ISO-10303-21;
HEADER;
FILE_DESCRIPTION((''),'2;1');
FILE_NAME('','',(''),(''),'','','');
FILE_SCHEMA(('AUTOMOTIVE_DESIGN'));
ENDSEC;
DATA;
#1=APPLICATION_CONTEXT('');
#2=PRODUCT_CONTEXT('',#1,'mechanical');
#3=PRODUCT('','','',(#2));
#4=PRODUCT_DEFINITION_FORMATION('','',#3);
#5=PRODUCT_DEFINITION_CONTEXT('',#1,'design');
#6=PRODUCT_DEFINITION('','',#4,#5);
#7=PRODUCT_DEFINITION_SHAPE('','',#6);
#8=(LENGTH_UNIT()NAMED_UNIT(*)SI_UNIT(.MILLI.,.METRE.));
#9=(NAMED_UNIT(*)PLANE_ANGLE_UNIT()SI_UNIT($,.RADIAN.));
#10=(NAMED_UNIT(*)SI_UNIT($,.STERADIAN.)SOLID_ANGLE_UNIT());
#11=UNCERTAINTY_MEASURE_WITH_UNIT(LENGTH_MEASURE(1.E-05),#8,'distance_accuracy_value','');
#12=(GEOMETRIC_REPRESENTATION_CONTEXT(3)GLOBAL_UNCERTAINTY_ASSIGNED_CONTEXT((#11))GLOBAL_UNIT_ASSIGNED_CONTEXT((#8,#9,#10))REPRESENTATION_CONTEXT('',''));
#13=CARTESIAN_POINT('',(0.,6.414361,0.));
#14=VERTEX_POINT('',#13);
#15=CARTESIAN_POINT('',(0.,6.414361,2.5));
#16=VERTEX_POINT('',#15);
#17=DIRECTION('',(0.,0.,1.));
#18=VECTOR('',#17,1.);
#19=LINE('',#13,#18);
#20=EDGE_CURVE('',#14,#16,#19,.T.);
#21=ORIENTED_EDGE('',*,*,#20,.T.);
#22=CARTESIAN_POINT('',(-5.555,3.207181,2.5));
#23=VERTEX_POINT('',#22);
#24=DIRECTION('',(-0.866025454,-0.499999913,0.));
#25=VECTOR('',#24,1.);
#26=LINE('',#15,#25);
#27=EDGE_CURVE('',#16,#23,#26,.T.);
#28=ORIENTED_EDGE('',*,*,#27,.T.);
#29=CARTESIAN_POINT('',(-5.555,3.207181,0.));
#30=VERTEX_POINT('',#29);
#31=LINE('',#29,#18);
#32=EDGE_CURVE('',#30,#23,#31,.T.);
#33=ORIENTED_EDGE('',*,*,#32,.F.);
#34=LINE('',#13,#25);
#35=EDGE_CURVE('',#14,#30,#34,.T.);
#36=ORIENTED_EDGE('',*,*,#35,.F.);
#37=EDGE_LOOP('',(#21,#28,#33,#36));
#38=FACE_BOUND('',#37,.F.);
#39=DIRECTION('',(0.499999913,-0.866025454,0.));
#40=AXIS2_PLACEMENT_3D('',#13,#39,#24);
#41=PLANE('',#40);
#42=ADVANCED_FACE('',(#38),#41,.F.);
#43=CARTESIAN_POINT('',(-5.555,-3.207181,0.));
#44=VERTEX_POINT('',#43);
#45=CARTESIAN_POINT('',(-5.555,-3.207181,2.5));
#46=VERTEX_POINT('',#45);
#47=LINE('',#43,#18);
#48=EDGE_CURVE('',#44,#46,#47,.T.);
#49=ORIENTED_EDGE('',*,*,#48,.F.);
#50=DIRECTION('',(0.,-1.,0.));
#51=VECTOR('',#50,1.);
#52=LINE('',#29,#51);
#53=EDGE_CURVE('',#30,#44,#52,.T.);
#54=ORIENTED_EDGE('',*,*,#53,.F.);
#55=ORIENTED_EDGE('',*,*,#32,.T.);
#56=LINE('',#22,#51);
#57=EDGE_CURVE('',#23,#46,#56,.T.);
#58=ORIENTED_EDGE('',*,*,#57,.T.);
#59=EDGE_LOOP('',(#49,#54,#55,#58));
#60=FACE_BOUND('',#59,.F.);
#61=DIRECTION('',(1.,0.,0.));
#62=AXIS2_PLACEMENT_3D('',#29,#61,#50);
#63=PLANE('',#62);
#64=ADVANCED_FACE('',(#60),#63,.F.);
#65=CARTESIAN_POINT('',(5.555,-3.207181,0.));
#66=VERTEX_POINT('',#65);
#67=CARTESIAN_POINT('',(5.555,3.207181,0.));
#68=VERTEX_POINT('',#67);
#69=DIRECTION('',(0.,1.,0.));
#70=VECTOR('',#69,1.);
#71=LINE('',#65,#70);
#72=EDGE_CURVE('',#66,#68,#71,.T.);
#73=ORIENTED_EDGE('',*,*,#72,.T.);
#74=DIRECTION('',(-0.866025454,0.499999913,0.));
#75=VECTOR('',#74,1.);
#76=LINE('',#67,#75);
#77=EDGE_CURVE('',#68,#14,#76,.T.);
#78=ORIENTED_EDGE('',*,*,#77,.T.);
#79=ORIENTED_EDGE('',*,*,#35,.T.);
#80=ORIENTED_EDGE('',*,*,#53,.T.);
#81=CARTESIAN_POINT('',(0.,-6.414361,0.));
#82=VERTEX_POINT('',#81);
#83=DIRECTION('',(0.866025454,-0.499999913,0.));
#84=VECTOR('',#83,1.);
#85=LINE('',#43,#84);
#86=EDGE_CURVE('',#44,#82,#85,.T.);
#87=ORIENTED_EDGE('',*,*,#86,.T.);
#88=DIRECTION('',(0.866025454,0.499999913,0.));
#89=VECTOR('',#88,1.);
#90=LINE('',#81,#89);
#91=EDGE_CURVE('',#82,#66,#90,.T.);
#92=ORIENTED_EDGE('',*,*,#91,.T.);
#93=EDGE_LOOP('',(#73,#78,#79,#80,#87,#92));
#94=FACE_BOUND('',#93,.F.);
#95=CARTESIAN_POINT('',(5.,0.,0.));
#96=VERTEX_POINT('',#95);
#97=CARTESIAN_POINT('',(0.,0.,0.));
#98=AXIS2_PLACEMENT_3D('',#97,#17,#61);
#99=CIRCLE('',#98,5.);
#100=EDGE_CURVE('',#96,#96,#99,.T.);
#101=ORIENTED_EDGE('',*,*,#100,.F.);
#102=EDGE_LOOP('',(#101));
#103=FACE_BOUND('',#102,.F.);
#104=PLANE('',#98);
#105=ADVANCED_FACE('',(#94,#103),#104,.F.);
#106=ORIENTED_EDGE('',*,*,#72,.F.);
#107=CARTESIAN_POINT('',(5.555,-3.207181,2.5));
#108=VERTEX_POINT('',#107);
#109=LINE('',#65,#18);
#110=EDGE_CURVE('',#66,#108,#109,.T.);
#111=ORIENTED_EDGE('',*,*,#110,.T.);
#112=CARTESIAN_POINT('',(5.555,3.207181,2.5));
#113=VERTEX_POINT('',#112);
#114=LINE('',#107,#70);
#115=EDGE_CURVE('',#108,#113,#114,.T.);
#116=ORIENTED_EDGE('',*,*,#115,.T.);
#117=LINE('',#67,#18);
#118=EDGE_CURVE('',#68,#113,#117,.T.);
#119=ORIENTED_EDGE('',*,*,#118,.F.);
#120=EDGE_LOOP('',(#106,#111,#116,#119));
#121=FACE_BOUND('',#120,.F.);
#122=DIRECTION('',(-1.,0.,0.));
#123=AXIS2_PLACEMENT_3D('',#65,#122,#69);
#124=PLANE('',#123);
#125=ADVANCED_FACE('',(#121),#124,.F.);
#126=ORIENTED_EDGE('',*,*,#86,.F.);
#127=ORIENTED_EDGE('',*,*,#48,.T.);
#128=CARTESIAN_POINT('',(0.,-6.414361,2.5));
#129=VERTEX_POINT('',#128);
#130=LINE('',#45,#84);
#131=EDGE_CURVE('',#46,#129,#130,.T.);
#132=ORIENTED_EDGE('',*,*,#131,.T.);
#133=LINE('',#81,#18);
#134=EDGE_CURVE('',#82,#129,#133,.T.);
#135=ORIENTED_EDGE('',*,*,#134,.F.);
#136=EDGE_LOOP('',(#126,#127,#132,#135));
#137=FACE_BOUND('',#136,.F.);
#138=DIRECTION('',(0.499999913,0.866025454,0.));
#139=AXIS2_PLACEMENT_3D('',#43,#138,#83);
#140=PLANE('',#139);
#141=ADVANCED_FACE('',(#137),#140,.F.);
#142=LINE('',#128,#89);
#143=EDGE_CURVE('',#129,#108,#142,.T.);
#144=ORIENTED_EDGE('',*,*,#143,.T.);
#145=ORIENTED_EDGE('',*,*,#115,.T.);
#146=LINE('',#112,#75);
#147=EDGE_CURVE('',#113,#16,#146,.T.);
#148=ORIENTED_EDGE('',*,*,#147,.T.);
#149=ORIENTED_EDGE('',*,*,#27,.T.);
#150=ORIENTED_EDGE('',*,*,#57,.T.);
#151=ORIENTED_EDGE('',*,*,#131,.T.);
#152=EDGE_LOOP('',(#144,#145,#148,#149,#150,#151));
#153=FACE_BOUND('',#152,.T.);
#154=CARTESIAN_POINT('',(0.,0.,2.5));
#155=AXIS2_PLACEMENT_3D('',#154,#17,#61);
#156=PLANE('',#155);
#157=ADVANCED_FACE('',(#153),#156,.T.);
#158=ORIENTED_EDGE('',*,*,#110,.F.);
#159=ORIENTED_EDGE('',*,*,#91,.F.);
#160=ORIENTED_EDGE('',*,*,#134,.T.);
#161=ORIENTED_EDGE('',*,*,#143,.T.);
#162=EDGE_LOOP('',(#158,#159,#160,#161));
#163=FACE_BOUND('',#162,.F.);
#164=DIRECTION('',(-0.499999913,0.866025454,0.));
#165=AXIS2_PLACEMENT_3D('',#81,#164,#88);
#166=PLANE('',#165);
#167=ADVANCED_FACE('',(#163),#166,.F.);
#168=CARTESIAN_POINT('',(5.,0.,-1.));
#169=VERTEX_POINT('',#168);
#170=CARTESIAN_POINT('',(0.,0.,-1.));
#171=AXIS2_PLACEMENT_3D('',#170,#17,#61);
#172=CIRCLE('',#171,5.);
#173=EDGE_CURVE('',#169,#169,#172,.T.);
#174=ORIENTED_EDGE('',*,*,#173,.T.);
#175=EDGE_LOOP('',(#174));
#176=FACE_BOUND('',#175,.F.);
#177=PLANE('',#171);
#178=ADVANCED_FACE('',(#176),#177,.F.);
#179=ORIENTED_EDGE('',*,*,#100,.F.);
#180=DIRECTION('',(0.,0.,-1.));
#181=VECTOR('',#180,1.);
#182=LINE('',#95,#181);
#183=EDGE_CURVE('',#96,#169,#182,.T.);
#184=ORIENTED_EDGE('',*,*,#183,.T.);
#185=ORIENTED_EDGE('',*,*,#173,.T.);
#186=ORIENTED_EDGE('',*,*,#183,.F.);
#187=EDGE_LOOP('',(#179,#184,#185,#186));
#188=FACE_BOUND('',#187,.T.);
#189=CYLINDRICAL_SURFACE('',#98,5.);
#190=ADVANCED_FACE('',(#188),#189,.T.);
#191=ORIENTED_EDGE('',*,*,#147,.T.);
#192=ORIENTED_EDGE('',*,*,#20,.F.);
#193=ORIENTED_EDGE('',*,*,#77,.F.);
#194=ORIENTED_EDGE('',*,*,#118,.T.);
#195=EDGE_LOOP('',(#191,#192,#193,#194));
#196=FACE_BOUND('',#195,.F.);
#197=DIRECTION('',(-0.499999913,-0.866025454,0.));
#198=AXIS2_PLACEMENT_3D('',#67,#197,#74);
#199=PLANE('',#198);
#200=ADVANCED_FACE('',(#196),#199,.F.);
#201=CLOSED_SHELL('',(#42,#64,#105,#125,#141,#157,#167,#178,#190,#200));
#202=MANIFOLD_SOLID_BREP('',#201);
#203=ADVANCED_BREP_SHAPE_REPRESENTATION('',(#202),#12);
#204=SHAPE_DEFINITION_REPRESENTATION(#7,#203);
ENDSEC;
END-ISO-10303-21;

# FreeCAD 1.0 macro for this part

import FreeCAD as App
import Part
import Sketcher
from FreeCAD import Vector
Q = App.Units.Quantity


def add_polygon(sketch, points):
    """Adds a closed chain of lines whose ends are joined by coincident constraints."""
    first, n = sketch.GeometryCount, len(points)
    for a, b in zip(points, points[1:] + points[:1]):
        sketch.addGeometry(Part.LineSegment(App.Vector(*a, 0), App.Vector(*b, 0)), False)
    for i in range(n):
        sketch.addConstraint(Sketcher.Constraint("Coincident", first + i, 2, first + (i + 1) % n, 1))

doc = App.newDocument("Part")
body = doc.addObject("PartDesign::Body", "Body")

# Sketch on XY plane
sketch1 = body.newObject("Sketcher::SketchObject", "Sketch")
sketch1.AttachmentSupport = (doc.getObject("XY_Plane"), [""])
sketch1.MapMode = "FlatFace"
add_polygon(sketch1, [(5.555, -3.207181), (5.555, 3.207181), (0, 6.414361), (-5.555, 3.207181), (-5.555, -3.207181), (0, -6.414361)])  # lines 0-5
sketch1.addConstraint(Sketcher.Constraint("Vertical", 0))
sketch1.addConstraint(Sketcher.Constraint("Vertical", 3))
sketch1.addConstraint(Sketcher.Constraint("Symmetric", 0, 2, 3, 2, -1, 1))
sketch1.addConstraint(Sketcher.Constraint("Symmetric", 1, 2, 4, 2, -1, 1))
sketch1.addConstraint(Sketcher.Constraint("PointOnObject", 1, 2, -2))
sketch1.addConstraint(Sketcher.Constraint("Parallel", 2, 5))
sketch1.addConstraint(Sketcher.Constraint("Horizontal", 0, 2, 2, 2))
sketch1.addConstraint(Sketcher.Constraint("Angle", 1, Q("150.000006 deg")))
sketch1.addConstraint(Sketcher.Constraint("DistanceX", 2, 2, 0, 2, 11.11))
sketch1.addConstraint(Sketcher.Constraint("DistanceY", 0, 1, 0, 2, 6.414362))
pad1 = body.newObject("PartDesign::Pad", "Pad")
pad1.Profile = sketch1
pad1.Length = 2.5

# Sketch on XY plane
sketch2 = body.newObject("Sketcher::SketchObject", "Sketch001")
sketch2.AttachmentSupport = (doc.getObject("XY_Plane"), [""])
sketch2.MapMode = "FlatFace"
sketch2.addGeometry(Part.Circle(Vector(0, 0, 0), Vector(0, 0, 1), 5), False)
sketch2.addConstraint(Sketcher.Constraint("Coincident", 0, 3, -1, 1))
sketch2.addConstraint(Sketcher.Constraint("Diameter", 0, 10.0))
pad2 = body.newObject("PartDesign::Pad", "Pad001")
pad2.Profile = sketch2
pad2.Length = 1
pad2.Reversed = True

doc.recompute()
